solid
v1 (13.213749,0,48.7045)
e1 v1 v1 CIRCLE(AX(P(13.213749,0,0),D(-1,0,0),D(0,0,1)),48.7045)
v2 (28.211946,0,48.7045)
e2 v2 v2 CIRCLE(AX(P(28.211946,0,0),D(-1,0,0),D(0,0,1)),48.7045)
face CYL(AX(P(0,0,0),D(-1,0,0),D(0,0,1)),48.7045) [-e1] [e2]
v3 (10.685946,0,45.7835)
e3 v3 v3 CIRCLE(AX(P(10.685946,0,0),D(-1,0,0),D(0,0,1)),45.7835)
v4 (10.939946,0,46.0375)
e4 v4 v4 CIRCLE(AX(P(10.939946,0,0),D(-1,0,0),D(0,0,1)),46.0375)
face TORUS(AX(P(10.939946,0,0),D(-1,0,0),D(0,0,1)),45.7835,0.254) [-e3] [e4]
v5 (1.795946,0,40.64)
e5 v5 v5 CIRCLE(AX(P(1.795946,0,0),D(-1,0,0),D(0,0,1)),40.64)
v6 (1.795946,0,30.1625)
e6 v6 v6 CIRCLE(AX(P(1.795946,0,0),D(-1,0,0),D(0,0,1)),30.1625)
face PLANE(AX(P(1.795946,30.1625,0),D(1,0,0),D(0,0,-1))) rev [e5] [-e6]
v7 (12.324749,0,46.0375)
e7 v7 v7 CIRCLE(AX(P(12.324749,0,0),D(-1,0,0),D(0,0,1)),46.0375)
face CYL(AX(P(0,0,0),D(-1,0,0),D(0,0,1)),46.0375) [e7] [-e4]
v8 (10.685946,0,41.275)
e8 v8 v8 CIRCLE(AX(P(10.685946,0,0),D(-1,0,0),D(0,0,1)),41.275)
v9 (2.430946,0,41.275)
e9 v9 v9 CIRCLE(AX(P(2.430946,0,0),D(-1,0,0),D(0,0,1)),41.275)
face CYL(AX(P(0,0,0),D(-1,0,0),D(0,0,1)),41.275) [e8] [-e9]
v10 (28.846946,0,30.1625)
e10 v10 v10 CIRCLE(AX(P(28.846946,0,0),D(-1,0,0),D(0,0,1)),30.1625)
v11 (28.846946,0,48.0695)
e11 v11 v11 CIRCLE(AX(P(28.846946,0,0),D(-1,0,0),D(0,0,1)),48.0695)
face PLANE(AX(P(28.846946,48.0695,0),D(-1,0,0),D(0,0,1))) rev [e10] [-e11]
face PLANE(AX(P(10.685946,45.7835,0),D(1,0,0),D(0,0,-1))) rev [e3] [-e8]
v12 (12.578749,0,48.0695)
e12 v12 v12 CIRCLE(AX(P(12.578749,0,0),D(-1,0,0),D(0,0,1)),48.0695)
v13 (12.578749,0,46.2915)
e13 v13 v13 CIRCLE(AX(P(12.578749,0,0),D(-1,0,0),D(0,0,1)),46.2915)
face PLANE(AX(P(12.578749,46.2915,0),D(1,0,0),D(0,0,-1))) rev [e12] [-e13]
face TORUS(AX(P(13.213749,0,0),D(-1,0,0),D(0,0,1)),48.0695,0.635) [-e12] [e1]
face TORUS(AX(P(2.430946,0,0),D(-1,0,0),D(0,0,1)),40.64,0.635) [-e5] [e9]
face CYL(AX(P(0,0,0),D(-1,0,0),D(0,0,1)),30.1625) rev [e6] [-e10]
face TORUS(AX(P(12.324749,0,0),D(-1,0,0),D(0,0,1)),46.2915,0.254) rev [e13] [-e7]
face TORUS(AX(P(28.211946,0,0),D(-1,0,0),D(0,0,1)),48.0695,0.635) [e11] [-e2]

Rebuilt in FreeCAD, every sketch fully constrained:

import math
import FreeCAD as App
import Part
import Sketcher
from FreeCAD import Vector
Q = App.Units.Quantity

doc = App.newDocument("Part")
body = doc.addObject("PartDesign::Body", "Body")

# Sketch on XY plane
sketch1 = body.newObject("Sketcher::SketchObject", "Sketch")
sketch1.AttachmentSupport = (doc.getObject("XY_Plane"), [""])
sketch1.MapMode = "FlatFace"
sketch1.addGeometry([
    Part.LineSegment(Vector(1.8, 40.64, 0), Vector(1.8, 30.16, 0)),  # 0
    Part.LineSegment(Vector(1.8, 30.16, 0), Vector(28.85, 30.16, 0)),  # 1
    Part.LineSegment(Vector(28.85, 30.16, 0), Vector(28.85, 48.07, 0)),  # 2
    Part.ArcOfCircle(Part.Circle(Vector(28.21, 48.07, 0), Vector(0, 0, 1), 0.64), math.radians(0), math.radians(90)),  # 3
    Part.LineSegment(Vector(28.21, 48.7, 0), Vector(13.21, 48.7, 0)),  # 4
    Part.ArcOfCircle(Part.Circle(Vector(13.21, 48.07, 0), Vector(0, 0, 1), 0.64), math.radians(90), math.radians(180)),  # 5
    Part.LineSegment(Vector(12.58, 48.07, 0), Vector(12.58, 46.29, 0)),  # 6
    Part.ArcOfCircle(Part.Circle(Vector(12.32, 46.29, 0), Vector(0, 0, 1), 0.25), math.radians(-90), math.radians(0)),  # 7
    Part.LineSegment(Vector(12.32, 46.04, 0), Vector(10.94, 46.04, 0)),  # 8
    Part.ArcOfCircle(Part.Circle(Vector(10.94, 45.78, 0), Vector(0, 0, 1), 0.25), math.radians(90), math.radians(180)),  # 9
    Part.LineSegment(Vector(10.69, 45.78, 0), Vector(10.69, 41.27, 0)),  # 10
    Part.LineSegment(Vector(10.69, 41.27, 0), Vector(2.43, 41.27, 0)),  # 11
    Part.ArcOfCircle(Part.Circle(Vector(2.43, 40.64, 0), Vector(0, 0, 1), 0.64), math.radians(90), math.radians(180)),  # 12
], False)
sketch1.addConstraint([
    Sketcher.Constraint("Coincident", 0, 2, 1, 1),
    Sketcher.Constraint("Coincident", 1, 2, 2, 1),
    Sketcher.Constraint("Tangent", 2, 2, 3, 1),
    Sketcher.Constraint("Tangent", 3, 2, 4, 1),
    Sketcher.Constraint("Tangent", 4, 2, 5, 1),
    Sketcher.Constraint("Tangent", 5, 2, 6, 1),
    Sketcher.Constraint("Tangent", 6, 2, 7, 2),
    Sketcher.Constraint("Tangent", 7, 1, 8, 1),
    Sketcher.Constraint("Tangent", 8, 2, 9, 1),
    Sketcher.Constraint("Tangent", 9, 2, 10, 1),
    Sketcher.Constraint("Coincident", 10, 2, 11, 1),
    Sketcher.Constraint("Tangent", 11, 2, 12, 1),
    Sketcher.Constraint("Tangent", 12, 2, 0, 1),
    Sketcher.Constraint("Vertical", 0),
    Sketcher.Constraint("Horizontal", 1),
    Sketcher.Constraint("Vertical", 2),
    Sketcher.Constraint("Horizontal", 4),
    Sketcher.Constraint("Vertical", 6),
    Sketcher.Constraint("Horizontal", 8),
    Sketcher.Constraint("Vertical", 10),
    Sketcher.Constraint("Horizontal", 11),
    Sketcher.Constraint("Equal", 3, 5),
    Sketcher.Constraint("Equal", 7, 9),
    Sketcher.Constraint("Equal", 5, 12),
    Sketcher.Constraint("Radius", 7, Q("0.01 in")),
    Sketcher.Constraint("Radius", 3, Q("0.025 in")),
    Sketcher.Constraint("DistanceY", 6, 2, 6, 1, Q("0.07 in")),
    Sketcher.Constraint("DistanceY", -1, 1, 12, 3, Q("1.6 in")),
    Sketcher.Constraint("DistanceX", 1, 1, 1, 2, Q("1.065 in")),
    Sketcher.Constraint("DistanceX", 11, 2, 11, 1, Q("0.325 in")),
    Sketcher.Constraint("DistanceY", 2, 1, 2, 2, Q("0.705 in")),
    Sketcher.Constraint("DistanceY", 0, 2, 0, 1, Q("0.4125 in")),
    Sketcher.Constraint("DistanceX", 4, 2, 4, 1, Q("14.998197 mm")),
    Sketcher.Constraint("DistanceX", -1, 1, 5, 3, Q("13.213749 mm")),
])
revolution = body.newObject("PartDesign::Revolution", "Revolution")
revolution.Profile = sketch1
revolution.ReferenceAxis = (sketch1, ["H_Axis"])
revolution.Angle = 360

doc.recompute()
